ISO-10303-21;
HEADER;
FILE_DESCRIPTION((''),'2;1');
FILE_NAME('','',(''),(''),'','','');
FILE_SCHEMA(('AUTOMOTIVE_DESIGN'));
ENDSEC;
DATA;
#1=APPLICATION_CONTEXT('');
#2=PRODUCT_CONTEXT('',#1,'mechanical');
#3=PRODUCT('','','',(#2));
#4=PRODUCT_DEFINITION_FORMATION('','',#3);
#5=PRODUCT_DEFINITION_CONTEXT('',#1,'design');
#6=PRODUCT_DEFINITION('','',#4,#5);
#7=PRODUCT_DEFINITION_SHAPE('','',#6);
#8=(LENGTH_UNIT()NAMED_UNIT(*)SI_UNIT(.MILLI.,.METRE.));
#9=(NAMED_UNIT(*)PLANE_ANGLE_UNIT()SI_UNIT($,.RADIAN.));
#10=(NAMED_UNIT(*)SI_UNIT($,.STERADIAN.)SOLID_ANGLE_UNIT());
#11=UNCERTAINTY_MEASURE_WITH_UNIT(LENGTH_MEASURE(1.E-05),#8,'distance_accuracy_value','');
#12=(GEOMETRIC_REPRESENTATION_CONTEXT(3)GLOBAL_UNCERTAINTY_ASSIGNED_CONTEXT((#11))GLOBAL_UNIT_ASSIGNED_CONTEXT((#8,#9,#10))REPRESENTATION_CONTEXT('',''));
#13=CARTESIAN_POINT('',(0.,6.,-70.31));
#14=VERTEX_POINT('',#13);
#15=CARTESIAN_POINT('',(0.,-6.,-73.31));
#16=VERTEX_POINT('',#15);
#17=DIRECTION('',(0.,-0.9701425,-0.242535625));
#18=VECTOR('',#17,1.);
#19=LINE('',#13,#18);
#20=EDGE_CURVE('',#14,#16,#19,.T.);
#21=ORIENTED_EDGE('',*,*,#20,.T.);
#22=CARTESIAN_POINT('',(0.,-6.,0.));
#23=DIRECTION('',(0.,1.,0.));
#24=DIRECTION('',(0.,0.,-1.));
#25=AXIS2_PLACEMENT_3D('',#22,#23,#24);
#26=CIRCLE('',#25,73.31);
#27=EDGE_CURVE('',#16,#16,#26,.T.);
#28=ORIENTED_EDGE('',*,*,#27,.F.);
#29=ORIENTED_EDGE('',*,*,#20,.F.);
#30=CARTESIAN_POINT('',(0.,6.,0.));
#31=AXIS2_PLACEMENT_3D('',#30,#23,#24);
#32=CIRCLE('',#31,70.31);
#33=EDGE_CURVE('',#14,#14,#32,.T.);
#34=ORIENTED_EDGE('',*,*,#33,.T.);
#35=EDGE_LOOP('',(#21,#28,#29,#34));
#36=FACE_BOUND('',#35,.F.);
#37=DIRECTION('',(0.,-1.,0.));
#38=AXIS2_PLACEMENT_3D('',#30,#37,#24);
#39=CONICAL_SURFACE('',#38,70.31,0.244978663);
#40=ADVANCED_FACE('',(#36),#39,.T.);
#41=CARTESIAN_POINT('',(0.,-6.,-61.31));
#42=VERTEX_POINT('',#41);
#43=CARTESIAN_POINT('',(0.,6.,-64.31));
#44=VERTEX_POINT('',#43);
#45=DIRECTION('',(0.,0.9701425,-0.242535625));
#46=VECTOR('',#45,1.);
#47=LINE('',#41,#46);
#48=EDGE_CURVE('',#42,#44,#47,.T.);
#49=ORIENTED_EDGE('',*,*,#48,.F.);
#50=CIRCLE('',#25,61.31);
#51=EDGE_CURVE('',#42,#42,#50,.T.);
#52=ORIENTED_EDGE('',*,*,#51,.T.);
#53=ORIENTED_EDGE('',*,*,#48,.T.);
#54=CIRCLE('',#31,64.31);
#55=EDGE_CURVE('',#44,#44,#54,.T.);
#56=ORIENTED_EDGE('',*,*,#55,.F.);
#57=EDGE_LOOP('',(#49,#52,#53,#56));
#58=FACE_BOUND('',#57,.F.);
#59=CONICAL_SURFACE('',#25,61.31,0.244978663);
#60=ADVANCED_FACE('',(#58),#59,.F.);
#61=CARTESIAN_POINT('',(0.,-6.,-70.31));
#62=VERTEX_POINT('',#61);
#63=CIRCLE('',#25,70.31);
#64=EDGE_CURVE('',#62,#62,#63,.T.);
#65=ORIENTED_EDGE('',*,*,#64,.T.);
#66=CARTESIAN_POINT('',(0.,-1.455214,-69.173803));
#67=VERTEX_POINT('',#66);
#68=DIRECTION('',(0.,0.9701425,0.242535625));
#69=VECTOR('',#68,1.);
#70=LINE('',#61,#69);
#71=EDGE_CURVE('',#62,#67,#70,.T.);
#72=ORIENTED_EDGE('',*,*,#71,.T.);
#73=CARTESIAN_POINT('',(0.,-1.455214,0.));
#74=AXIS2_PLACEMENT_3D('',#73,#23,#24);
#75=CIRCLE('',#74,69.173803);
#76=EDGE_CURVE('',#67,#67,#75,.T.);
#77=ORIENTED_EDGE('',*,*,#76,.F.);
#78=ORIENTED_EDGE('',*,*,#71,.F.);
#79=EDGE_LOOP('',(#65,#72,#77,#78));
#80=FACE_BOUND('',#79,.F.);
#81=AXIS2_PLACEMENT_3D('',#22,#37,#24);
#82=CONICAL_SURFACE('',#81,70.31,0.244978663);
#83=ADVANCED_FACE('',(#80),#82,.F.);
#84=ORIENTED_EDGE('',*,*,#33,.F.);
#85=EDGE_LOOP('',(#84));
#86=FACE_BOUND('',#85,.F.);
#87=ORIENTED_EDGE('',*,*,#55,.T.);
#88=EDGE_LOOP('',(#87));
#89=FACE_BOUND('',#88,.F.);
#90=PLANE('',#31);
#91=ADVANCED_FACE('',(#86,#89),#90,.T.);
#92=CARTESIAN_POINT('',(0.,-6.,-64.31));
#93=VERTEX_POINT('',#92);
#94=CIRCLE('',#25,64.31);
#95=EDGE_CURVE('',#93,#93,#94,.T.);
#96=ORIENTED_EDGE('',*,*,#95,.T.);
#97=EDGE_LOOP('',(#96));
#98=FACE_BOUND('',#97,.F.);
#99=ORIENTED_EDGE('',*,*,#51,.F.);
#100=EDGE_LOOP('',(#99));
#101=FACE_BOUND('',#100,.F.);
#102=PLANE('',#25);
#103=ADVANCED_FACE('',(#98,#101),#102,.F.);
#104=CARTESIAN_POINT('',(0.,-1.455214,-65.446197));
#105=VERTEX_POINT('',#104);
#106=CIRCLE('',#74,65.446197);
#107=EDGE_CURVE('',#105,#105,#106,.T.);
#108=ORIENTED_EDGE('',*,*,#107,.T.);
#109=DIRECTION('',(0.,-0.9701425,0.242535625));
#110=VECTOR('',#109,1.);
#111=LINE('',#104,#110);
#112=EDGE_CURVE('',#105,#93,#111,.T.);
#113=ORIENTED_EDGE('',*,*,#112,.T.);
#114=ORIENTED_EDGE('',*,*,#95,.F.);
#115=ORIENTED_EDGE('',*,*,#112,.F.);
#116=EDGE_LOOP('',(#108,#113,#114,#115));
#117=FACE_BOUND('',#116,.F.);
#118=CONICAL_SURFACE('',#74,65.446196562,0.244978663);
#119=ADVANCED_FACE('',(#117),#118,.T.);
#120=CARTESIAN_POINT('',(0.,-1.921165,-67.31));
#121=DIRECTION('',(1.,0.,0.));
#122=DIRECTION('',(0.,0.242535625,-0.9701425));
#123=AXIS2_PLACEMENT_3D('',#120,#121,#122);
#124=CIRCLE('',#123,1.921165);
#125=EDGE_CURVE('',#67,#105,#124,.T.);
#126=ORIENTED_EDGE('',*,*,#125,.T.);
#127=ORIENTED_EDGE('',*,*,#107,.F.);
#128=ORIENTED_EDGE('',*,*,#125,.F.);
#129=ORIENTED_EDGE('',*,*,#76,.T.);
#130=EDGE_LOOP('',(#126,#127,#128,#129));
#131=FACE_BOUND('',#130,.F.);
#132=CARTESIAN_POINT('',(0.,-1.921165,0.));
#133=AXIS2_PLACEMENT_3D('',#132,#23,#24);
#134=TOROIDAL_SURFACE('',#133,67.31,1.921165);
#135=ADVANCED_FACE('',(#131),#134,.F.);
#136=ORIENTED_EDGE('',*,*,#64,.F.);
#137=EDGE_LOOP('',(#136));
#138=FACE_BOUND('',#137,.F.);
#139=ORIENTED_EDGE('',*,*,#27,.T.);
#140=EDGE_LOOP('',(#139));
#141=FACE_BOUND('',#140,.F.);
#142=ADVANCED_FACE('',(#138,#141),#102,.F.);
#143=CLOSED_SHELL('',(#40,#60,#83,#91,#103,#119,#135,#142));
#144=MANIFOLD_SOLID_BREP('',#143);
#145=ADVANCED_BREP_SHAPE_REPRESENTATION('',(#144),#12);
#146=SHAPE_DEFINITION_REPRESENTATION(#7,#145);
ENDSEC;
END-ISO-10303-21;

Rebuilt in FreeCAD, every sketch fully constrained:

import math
import FreeCAD as App
import Part
import Sketcher
from FreeCAD import Vector
Q = App.Units.Quantity

doc = App.newDocument("Part")
body = doc.addObject("PartDesign::Body", "Body")

# Sketch on YZ plane
sketch1 = body.newObject("Sketcher::SketchObject", "Sketch")
sketch1.AttachmentSupport = (doc.getObject("YZ_Plane"), [""])
sketch1.MapMode = "FlatFace"
sketch1.addGeometry([
    Part.LineSegment(Vector(6, -70.3, 0), Vector(6, -64.3, 0)),  # 0
    Part.LineSegment(Vector(6, -64.3, 0), Vector(-6, -61.3, 0)),  # 1
    Part.LineSegment(Vector(-6, -61.3, 0), Vector(-6, -64.3, 0)),  # 2
    Part.LineSegment(Vector(-6, -64.3, 0), Vector(-1.5, -65.4, 0)),  # 3
    Part.ArcOfCircle(Part.Circle(Vector(-1.9, -67.3, 0), Vector(0, 0, 1), 1.9), math.radians(-76), math.radians(76)),  # 4
    Part.LineSegment(Vector(-1.5, -69.2, 0), Vector(-6, -70.3, 0)),  # 5
    Part.LineSegment(Vector(-6, -70.3, 0), Vector(-6, -73.3, 0)),  # 6
    Part.LineSegment(Vector(-6, -73.3, 0), Vector(6, -70.3, 0)),  # 7
], False)
sketch1.addConstraint([
    Sketcher.Constraint("Coincident", 0, 2, 1, 1),
    Sketcher.Constraint("Coincident", 1, 2, 2, 1),
    Sketcher.Constraint("Coincident", 2, 2, 3, 1),
    Sketcher.Constraint("Tangent", 3, 2, 4, 2),
    Sketcher.Constraint("Tangent", 4, 1, 5, 1),
    Sketcher.Constraint("Coincident", 5, 2, 6, 1),
    Sketcher.Constraint("Coincident", 6, 2, 7, 1),
    Sketcher.Constraint("Coincident", 7, 2, 0, 1),
    Sketcher.Constraint("Vertical", 0),
    Sketcher.Constraint("Vertical", 2),
    Sketcher.Constraint("Vertical", 6),
    Sketcher.Constraint("Symmetric", 0, 2, 2, 2, -2),
    Sketcher.Constraint("Symmetric", 5, 2, 7, 2, -2),
    Sketcher.Constraint("Parallel", 1, 3),
    Sketcher.Constraint("Parallel", 5, 7),
    Sketcher.Constraint("Vertical", 3, 2, 4, 1),
    Sketcher.Constraint("DistanceY", 0, 1, 0, 2, Q("6 mm")),
    Sketcher.Constraint("DistanceY", 2, 2, 2, 1, Q("3 mm")),
    Sketcher.Constraint("DistanceX", -1, 1, 0, 2, Q("6 mm")),
    Sketcher.Constraint("DistanceY", 4, 3, -1, 1, Q("67.31 mm")),
    Sketcher.Constraint("Radius", 4, Q("1.921165 mm")),
])
revolution = body.newObject("PartDesign::Revolution", "Revolution")
revolution.Profile = sketch1
revolution.ReferenceAxis = (sketch1, ["H_Axis"])
revolution.Angle = 360

doc.recompute()
